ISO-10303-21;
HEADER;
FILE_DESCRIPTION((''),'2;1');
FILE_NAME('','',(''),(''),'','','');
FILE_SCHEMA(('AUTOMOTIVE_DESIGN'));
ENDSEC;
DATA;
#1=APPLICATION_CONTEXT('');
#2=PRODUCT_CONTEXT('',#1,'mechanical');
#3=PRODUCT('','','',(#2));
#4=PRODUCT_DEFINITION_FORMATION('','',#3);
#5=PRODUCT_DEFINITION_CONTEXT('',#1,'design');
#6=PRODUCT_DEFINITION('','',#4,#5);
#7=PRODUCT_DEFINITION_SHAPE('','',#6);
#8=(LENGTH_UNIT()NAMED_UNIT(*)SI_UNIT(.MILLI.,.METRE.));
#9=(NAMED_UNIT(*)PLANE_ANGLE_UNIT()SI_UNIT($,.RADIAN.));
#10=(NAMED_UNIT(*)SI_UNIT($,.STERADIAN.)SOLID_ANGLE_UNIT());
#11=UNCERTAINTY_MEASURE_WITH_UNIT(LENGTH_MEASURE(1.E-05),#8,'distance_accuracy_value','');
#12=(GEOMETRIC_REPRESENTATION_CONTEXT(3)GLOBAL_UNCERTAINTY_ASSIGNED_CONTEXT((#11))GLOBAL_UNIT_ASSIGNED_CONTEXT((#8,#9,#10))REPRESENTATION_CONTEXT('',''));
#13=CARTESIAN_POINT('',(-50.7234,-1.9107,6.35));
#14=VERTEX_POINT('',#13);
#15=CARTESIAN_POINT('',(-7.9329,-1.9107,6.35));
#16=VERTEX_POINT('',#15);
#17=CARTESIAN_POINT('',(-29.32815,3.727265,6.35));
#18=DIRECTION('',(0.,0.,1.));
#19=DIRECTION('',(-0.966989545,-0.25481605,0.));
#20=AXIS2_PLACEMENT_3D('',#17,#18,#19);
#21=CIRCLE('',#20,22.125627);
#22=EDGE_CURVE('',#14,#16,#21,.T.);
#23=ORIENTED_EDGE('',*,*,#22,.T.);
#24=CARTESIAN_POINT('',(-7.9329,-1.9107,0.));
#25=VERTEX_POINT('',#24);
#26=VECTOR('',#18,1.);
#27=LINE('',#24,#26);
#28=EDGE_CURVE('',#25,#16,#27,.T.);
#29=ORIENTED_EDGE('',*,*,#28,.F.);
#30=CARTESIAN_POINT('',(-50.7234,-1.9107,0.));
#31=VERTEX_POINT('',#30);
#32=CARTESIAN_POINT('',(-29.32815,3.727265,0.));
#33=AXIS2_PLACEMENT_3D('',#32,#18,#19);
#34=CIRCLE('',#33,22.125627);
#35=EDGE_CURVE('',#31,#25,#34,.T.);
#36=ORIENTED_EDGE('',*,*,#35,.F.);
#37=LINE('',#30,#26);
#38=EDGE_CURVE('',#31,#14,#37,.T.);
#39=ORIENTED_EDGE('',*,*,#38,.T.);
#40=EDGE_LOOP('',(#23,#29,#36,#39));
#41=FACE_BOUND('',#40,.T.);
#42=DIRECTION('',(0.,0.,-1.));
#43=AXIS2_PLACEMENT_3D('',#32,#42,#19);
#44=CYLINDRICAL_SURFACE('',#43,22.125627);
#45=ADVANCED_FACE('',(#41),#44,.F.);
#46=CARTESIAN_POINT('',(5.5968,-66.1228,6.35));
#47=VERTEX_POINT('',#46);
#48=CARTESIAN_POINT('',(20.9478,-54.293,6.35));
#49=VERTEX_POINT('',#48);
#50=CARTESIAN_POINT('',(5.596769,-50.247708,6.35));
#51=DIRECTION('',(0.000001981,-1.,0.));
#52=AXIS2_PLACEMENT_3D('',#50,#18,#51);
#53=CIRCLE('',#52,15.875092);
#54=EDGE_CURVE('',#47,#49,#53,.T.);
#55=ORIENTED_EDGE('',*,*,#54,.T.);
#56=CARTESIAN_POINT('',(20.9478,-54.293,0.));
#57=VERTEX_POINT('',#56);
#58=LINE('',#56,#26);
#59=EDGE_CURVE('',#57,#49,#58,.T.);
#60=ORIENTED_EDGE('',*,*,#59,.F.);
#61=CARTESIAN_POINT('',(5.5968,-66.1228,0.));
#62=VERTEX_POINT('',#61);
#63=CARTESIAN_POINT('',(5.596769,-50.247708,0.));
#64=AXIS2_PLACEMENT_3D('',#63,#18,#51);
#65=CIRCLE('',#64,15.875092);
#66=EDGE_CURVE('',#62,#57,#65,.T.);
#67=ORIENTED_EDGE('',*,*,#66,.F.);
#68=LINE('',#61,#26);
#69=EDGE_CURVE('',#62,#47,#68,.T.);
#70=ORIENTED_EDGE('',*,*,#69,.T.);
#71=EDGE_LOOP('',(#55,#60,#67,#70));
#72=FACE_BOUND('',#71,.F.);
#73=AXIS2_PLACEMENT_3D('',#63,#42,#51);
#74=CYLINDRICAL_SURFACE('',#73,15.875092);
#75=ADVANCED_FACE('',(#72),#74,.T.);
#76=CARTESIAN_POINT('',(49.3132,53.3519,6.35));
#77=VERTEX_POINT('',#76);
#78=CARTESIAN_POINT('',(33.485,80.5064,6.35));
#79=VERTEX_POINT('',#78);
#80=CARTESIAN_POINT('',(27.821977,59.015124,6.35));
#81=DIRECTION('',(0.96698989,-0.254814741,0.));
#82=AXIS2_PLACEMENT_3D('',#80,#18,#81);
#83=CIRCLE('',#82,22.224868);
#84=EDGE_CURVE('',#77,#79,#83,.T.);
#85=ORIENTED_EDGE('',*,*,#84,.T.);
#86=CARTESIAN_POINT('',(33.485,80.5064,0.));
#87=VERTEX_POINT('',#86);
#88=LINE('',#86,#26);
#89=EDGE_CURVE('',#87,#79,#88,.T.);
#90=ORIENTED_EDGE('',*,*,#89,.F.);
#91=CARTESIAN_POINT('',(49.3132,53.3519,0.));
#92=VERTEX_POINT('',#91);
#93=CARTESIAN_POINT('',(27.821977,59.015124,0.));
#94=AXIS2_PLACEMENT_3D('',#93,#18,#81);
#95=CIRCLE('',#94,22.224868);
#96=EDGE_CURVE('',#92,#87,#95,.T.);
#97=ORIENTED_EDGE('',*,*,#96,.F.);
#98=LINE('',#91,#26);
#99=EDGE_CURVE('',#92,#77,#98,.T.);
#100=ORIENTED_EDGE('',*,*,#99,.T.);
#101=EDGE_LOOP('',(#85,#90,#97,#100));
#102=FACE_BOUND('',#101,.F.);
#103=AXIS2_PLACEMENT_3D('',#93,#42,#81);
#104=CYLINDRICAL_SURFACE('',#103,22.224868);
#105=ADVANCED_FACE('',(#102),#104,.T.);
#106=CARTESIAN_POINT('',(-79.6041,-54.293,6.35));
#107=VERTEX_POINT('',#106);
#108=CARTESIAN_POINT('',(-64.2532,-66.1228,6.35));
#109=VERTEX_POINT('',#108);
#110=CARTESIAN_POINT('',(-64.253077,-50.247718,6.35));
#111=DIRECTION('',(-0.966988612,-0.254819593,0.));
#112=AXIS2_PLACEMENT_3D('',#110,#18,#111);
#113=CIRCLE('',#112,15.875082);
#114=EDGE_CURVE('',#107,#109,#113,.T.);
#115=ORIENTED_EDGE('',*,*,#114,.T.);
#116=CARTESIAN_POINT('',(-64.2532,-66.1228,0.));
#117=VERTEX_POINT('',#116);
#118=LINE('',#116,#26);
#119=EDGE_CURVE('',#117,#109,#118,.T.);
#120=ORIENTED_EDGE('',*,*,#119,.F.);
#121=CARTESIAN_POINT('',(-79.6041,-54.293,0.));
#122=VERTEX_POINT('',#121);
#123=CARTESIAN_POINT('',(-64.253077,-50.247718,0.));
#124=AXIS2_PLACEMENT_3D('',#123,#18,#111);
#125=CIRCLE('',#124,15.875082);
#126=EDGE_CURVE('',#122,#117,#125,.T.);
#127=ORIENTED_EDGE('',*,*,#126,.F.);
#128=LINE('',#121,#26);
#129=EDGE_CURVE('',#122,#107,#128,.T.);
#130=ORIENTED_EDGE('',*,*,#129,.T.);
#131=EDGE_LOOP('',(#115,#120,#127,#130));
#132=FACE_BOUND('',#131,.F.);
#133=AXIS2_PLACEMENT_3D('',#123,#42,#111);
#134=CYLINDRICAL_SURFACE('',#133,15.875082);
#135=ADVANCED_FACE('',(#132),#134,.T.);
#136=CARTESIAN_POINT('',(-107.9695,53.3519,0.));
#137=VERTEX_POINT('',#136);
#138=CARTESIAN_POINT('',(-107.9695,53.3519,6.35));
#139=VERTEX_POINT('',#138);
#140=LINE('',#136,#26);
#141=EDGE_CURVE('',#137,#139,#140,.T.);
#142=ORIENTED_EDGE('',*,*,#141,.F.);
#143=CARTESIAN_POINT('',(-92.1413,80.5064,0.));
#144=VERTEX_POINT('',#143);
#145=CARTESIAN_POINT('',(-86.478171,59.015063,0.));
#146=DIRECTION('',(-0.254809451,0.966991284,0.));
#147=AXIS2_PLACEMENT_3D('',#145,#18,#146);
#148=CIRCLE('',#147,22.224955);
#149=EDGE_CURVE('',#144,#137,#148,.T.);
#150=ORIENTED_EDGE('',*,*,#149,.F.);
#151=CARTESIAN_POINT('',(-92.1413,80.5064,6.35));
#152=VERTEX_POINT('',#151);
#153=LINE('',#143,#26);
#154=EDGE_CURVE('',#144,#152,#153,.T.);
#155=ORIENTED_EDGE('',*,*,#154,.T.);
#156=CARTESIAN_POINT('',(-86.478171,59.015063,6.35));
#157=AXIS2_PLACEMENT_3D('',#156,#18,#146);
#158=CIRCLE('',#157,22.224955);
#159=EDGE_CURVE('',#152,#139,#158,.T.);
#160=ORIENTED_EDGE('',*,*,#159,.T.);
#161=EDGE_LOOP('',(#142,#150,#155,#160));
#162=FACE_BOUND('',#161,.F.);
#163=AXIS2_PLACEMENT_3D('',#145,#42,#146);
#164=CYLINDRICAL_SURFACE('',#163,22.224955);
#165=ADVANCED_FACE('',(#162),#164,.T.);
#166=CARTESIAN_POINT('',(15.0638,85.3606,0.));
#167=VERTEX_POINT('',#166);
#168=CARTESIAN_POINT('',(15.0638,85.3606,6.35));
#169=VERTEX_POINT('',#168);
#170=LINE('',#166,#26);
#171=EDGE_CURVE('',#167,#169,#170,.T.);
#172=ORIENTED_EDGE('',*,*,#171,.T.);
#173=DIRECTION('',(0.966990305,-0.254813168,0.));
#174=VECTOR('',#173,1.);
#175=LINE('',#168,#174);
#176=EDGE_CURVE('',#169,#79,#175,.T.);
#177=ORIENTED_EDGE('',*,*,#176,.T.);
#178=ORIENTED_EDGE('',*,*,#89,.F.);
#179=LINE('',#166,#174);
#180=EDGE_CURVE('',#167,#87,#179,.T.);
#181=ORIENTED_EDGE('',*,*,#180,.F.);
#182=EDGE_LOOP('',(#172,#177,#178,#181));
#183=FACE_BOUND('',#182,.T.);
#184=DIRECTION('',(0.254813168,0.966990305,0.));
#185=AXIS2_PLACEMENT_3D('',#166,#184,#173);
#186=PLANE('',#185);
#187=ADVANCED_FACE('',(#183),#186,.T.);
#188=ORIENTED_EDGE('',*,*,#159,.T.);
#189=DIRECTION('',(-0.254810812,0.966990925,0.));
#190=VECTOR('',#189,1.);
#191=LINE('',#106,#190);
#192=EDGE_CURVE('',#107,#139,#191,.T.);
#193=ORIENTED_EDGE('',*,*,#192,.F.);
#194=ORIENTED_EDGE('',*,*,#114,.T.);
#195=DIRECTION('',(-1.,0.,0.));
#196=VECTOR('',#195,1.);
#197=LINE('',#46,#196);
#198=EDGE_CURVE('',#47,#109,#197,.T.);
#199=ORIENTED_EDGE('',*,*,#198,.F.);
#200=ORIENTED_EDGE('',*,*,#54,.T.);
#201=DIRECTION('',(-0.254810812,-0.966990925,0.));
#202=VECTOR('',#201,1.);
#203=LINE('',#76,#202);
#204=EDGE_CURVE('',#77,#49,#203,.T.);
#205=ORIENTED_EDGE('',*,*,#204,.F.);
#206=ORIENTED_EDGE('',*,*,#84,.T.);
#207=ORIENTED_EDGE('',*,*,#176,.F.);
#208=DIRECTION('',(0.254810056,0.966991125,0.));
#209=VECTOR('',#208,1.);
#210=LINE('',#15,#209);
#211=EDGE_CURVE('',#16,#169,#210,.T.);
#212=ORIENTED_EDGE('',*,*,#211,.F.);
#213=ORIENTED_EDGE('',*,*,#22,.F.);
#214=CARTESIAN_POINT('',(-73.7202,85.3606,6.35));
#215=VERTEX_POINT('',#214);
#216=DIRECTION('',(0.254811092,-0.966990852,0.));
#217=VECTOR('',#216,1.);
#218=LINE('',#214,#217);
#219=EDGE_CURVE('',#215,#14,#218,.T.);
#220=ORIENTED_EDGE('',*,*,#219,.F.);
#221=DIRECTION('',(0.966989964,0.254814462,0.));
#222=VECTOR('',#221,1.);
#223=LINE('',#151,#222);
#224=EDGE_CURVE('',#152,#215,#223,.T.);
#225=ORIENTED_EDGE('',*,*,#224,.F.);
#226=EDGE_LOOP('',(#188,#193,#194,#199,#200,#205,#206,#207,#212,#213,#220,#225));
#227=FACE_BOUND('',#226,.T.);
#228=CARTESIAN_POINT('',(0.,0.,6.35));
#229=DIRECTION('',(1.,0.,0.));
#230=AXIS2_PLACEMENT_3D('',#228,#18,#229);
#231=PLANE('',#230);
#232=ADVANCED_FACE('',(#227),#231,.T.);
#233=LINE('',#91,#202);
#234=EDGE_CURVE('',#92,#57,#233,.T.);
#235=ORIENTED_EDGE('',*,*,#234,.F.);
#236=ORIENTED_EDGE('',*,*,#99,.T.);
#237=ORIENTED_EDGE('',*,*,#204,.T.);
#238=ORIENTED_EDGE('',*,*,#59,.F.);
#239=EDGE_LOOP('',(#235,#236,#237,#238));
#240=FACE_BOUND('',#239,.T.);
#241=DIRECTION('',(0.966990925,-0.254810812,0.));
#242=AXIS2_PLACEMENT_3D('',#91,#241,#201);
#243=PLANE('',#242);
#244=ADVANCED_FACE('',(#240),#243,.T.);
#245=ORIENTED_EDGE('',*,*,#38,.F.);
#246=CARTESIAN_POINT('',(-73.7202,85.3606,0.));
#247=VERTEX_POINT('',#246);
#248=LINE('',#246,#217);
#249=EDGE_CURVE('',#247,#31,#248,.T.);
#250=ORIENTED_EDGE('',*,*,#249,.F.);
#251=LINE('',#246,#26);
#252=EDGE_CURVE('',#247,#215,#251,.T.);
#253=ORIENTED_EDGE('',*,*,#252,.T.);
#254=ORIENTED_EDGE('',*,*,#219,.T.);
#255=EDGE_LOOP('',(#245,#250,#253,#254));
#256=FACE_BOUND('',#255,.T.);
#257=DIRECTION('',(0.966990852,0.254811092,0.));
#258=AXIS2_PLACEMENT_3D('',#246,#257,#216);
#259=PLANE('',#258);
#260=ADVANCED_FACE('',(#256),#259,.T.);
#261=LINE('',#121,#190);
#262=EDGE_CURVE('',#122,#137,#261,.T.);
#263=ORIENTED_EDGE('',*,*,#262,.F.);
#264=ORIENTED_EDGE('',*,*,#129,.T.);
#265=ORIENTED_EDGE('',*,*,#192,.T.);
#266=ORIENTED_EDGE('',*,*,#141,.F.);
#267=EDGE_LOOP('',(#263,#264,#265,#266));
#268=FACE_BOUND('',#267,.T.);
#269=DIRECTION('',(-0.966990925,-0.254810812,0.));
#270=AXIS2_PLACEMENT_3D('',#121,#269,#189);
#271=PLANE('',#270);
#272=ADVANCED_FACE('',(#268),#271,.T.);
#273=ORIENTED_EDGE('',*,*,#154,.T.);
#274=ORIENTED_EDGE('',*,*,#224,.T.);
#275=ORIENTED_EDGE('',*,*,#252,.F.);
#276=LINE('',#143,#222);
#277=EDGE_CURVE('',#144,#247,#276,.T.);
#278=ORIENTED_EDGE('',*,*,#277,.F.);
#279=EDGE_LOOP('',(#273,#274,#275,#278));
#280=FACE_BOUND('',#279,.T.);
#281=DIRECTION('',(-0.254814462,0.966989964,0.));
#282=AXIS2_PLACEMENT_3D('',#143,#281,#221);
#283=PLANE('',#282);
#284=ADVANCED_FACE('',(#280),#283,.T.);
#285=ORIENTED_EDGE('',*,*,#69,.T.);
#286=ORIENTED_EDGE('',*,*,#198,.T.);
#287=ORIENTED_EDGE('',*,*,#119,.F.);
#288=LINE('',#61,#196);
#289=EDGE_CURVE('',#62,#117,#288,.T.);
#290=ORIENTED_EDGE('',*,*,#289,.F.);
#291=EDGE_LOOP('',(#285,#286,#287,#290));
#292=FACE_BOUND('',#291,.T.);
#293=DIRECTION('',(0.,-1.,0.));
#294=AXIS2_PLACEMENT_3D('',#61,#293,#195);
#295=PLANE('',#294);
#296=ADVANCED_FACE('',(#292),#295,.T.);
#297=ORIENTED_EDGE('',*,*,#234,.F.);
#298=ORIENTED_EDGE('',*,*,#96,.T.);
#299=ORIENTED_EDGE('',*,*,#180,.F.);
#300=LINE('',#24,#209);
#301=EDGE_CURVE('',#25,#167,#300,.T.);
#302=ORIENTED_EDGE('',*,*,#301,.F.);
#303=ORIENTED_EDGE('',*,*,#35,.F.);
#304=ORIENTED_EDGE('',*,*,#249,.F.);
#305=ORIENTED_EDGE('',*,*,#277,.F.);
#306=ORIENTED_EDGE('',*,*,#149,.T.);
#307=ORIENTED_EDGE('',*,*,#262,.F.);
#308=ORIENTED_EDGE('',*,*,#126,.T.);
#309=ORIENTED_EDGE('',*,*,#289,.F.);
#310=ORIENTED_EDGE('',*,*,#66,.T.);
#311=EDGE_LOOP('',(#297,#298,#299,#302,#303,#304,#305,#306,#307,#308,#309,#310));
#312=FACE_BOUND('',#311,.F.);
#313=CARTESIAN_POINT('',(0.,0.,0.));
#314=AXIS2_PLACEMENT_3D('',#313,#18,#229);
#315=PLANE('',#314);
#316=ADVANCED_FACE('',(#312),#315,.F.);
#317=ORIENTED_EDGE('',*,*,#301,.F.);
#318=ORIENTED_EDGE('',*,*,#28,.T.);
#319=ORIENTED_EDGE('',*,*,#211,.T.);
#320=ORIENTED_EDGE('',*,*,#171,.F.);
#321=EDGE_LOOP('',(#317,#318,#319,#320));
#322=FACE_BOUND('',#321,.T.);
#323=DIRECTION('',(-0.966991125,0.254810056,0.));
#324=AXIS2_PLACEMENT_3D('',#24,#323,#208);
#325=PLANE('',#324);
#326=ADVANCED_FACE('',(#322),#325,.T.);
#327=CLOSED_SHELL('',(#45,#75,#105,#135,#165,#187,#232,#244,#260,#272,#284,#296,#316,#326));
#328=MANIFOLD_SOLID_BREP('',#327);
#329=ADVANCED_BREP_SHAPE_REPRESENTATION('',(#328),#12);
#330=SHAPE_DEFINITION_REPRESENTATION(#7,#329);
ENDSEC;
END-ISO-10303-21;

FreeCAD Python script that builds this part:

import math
import FreeCAD as App
import Part
import Sketcher
from FreeCAD import Vector
Q = App.Units.Quantity

doc = App.newDocument("Part")
body = doc.addObject("PartDesign::Body", "Body")

# Sketch on XY plane
sketch1 = doc.addObject("Sketcher::SketchObject", "Sketch")
body.addObject(sketch1)
sketch1.AttachmentSupport = (doc.XY_Plane, [""])
sketch1.MapMode = "FlatFace"
sketch1.addGeometry([
    Part.ArcOfCircle(Part.Circle(Vector(-29, 4, 0), Vector(0, 0, 1), 22), math.radians(-165), math.radians(-15)),  # 0
    Part.LineSegment(Vector(-51, -2, 0), Vector(-74, 85, 0)),  # 1
    Part.LineSegment(Vector(-74, 85, 0), Vector(-92, 81, 0)),  # 2
    Part.ArcOfCircle(Part.Circle(Vector(-86, 59, 0), Vector(0, 0, 1), 22), math.radians(105), math.radians(195)),  # 3
    Part.LineSegment(Vector(-108, 53, 0), Vector(-80, -54, 0)),  # 4
    Part.ArcOfCircle(Part.Circle(Vector(-64, -50, 0), Vector(0, 0, 1), 16), math.radians(-165), math.radians(-90)),  # 5
    Part.LineSegment(Vector(-64, -66, 0), Vector(6, -66, 0)),  # 6
    Part.ArcOfCircle(Part.Circle(Vector(6, -50, 0), Vector(0, 0, 1), 16), math.radians(-90), math.radians(-15)),  # 7
    Part.LineSegment(Vector(21, -54, 0), Vector(49, 53, 0)),  # 8
    Part.ArcOfCircle(Part.Circle(Vector(28, 59, 0), Vector(0, 0, 1), 22), math.radians(-15), math.radians(75)),  # 9
    Part.LineSegment(Vector(33, 81, 0), Vector(15, 85, 0)),  # 10
    Part.LineSegment(Vector(15, 85, 0), Vector(-8, -2, 0)),  # 11
], False)
sketch1.addConstraint([
    Sketcher.Constraint("Tangent", 0, 1, 1, 1),
    Sketcher.Constraint("Coincident", 1, 2, 2, 1),
    Sketcher.Constraint("Tangent", 2, 2, 3, 1),
    Sketcher.Constraint("Tangent", 3, 2, 4, 1),
    Sketcher.Constraint("Tangent", 4, 2, 5, 1),
    Sketcher.Constraint("Tangent", 5, 2, 6, 1),
    Sketcher.Constraint("Tangent", 6, 2, 7, 1),
    Sketcher.Constraint("Tangent", 7, 2, 8, 1),
    Sketcher.Constraint("Tangent", 8, 2, 9, 1),
    Sketcher.Constraint("Tangent", 9, 2, 10, 1),
    Sketcher.Constraint("Coincident", 10, 2, 11, 1),
    Sketcher.Constraint("Tangent", 11, 2, 0, 2),
    Sketcher.Constraint("Horizontal", 6),
    Sketcher.Constraint("Equal", 5, 7),
    Sketcher.Constraint("Equal", 3, 9),
    Sketcher.Constraint("Perpendicular", 1, 2),
    Sketcher.Constraint("Perpendicular", 2, 4),
    Sketcher.Constraint("Perpendicular", 8, 10),
    Sketcher.Constraint("Perpendicular", 10, 11),
    Sketcher.Constraint("Horizontal", 3, 3, 9, 3),
    Sketcher.Constraint("Horizontal", 4, 2, 7, 2),
    Sketcher.Constraint("Horizontal", 1, 2, 10, 2),
    Sketcher.Constraint("Radius", 3, Q("0.875 in")),
    Sketcher.Constraint("Radius", 5, Q("0.625 in")),
    Sketcher.Constraint("DistanceX", 6, 1, 6, 2, Q("2.75 in")),
    Sketcher.Constraint("DistanceX", 3, 3, 0, 3, Q("2.25 in")),
    Sketcher.Constraint("DistanceY", 5, 2, 0, 3, Q("2.75 in")),
    Sketcher.Constraint("Distance", 2, Q("0.75 in")),
    Sketcher.Constraint("Radius", 0, Q("22.1256 mm")),
    Sketcher.Constraint("DistanceX", 2, 2, -1, 1, Q("3.6276 in")),
    Sketcher.Constraint("DistanceY", -1, 1, 0, 3, Q("3.7272 mm")),
])
pad1 = doc.addObject("PartDesign::Pad", "Pad")
body.addObject(pad1)
pad1.Profile = sketch1
pad1.Length = Q("0.25 in")

doc.recompute()
